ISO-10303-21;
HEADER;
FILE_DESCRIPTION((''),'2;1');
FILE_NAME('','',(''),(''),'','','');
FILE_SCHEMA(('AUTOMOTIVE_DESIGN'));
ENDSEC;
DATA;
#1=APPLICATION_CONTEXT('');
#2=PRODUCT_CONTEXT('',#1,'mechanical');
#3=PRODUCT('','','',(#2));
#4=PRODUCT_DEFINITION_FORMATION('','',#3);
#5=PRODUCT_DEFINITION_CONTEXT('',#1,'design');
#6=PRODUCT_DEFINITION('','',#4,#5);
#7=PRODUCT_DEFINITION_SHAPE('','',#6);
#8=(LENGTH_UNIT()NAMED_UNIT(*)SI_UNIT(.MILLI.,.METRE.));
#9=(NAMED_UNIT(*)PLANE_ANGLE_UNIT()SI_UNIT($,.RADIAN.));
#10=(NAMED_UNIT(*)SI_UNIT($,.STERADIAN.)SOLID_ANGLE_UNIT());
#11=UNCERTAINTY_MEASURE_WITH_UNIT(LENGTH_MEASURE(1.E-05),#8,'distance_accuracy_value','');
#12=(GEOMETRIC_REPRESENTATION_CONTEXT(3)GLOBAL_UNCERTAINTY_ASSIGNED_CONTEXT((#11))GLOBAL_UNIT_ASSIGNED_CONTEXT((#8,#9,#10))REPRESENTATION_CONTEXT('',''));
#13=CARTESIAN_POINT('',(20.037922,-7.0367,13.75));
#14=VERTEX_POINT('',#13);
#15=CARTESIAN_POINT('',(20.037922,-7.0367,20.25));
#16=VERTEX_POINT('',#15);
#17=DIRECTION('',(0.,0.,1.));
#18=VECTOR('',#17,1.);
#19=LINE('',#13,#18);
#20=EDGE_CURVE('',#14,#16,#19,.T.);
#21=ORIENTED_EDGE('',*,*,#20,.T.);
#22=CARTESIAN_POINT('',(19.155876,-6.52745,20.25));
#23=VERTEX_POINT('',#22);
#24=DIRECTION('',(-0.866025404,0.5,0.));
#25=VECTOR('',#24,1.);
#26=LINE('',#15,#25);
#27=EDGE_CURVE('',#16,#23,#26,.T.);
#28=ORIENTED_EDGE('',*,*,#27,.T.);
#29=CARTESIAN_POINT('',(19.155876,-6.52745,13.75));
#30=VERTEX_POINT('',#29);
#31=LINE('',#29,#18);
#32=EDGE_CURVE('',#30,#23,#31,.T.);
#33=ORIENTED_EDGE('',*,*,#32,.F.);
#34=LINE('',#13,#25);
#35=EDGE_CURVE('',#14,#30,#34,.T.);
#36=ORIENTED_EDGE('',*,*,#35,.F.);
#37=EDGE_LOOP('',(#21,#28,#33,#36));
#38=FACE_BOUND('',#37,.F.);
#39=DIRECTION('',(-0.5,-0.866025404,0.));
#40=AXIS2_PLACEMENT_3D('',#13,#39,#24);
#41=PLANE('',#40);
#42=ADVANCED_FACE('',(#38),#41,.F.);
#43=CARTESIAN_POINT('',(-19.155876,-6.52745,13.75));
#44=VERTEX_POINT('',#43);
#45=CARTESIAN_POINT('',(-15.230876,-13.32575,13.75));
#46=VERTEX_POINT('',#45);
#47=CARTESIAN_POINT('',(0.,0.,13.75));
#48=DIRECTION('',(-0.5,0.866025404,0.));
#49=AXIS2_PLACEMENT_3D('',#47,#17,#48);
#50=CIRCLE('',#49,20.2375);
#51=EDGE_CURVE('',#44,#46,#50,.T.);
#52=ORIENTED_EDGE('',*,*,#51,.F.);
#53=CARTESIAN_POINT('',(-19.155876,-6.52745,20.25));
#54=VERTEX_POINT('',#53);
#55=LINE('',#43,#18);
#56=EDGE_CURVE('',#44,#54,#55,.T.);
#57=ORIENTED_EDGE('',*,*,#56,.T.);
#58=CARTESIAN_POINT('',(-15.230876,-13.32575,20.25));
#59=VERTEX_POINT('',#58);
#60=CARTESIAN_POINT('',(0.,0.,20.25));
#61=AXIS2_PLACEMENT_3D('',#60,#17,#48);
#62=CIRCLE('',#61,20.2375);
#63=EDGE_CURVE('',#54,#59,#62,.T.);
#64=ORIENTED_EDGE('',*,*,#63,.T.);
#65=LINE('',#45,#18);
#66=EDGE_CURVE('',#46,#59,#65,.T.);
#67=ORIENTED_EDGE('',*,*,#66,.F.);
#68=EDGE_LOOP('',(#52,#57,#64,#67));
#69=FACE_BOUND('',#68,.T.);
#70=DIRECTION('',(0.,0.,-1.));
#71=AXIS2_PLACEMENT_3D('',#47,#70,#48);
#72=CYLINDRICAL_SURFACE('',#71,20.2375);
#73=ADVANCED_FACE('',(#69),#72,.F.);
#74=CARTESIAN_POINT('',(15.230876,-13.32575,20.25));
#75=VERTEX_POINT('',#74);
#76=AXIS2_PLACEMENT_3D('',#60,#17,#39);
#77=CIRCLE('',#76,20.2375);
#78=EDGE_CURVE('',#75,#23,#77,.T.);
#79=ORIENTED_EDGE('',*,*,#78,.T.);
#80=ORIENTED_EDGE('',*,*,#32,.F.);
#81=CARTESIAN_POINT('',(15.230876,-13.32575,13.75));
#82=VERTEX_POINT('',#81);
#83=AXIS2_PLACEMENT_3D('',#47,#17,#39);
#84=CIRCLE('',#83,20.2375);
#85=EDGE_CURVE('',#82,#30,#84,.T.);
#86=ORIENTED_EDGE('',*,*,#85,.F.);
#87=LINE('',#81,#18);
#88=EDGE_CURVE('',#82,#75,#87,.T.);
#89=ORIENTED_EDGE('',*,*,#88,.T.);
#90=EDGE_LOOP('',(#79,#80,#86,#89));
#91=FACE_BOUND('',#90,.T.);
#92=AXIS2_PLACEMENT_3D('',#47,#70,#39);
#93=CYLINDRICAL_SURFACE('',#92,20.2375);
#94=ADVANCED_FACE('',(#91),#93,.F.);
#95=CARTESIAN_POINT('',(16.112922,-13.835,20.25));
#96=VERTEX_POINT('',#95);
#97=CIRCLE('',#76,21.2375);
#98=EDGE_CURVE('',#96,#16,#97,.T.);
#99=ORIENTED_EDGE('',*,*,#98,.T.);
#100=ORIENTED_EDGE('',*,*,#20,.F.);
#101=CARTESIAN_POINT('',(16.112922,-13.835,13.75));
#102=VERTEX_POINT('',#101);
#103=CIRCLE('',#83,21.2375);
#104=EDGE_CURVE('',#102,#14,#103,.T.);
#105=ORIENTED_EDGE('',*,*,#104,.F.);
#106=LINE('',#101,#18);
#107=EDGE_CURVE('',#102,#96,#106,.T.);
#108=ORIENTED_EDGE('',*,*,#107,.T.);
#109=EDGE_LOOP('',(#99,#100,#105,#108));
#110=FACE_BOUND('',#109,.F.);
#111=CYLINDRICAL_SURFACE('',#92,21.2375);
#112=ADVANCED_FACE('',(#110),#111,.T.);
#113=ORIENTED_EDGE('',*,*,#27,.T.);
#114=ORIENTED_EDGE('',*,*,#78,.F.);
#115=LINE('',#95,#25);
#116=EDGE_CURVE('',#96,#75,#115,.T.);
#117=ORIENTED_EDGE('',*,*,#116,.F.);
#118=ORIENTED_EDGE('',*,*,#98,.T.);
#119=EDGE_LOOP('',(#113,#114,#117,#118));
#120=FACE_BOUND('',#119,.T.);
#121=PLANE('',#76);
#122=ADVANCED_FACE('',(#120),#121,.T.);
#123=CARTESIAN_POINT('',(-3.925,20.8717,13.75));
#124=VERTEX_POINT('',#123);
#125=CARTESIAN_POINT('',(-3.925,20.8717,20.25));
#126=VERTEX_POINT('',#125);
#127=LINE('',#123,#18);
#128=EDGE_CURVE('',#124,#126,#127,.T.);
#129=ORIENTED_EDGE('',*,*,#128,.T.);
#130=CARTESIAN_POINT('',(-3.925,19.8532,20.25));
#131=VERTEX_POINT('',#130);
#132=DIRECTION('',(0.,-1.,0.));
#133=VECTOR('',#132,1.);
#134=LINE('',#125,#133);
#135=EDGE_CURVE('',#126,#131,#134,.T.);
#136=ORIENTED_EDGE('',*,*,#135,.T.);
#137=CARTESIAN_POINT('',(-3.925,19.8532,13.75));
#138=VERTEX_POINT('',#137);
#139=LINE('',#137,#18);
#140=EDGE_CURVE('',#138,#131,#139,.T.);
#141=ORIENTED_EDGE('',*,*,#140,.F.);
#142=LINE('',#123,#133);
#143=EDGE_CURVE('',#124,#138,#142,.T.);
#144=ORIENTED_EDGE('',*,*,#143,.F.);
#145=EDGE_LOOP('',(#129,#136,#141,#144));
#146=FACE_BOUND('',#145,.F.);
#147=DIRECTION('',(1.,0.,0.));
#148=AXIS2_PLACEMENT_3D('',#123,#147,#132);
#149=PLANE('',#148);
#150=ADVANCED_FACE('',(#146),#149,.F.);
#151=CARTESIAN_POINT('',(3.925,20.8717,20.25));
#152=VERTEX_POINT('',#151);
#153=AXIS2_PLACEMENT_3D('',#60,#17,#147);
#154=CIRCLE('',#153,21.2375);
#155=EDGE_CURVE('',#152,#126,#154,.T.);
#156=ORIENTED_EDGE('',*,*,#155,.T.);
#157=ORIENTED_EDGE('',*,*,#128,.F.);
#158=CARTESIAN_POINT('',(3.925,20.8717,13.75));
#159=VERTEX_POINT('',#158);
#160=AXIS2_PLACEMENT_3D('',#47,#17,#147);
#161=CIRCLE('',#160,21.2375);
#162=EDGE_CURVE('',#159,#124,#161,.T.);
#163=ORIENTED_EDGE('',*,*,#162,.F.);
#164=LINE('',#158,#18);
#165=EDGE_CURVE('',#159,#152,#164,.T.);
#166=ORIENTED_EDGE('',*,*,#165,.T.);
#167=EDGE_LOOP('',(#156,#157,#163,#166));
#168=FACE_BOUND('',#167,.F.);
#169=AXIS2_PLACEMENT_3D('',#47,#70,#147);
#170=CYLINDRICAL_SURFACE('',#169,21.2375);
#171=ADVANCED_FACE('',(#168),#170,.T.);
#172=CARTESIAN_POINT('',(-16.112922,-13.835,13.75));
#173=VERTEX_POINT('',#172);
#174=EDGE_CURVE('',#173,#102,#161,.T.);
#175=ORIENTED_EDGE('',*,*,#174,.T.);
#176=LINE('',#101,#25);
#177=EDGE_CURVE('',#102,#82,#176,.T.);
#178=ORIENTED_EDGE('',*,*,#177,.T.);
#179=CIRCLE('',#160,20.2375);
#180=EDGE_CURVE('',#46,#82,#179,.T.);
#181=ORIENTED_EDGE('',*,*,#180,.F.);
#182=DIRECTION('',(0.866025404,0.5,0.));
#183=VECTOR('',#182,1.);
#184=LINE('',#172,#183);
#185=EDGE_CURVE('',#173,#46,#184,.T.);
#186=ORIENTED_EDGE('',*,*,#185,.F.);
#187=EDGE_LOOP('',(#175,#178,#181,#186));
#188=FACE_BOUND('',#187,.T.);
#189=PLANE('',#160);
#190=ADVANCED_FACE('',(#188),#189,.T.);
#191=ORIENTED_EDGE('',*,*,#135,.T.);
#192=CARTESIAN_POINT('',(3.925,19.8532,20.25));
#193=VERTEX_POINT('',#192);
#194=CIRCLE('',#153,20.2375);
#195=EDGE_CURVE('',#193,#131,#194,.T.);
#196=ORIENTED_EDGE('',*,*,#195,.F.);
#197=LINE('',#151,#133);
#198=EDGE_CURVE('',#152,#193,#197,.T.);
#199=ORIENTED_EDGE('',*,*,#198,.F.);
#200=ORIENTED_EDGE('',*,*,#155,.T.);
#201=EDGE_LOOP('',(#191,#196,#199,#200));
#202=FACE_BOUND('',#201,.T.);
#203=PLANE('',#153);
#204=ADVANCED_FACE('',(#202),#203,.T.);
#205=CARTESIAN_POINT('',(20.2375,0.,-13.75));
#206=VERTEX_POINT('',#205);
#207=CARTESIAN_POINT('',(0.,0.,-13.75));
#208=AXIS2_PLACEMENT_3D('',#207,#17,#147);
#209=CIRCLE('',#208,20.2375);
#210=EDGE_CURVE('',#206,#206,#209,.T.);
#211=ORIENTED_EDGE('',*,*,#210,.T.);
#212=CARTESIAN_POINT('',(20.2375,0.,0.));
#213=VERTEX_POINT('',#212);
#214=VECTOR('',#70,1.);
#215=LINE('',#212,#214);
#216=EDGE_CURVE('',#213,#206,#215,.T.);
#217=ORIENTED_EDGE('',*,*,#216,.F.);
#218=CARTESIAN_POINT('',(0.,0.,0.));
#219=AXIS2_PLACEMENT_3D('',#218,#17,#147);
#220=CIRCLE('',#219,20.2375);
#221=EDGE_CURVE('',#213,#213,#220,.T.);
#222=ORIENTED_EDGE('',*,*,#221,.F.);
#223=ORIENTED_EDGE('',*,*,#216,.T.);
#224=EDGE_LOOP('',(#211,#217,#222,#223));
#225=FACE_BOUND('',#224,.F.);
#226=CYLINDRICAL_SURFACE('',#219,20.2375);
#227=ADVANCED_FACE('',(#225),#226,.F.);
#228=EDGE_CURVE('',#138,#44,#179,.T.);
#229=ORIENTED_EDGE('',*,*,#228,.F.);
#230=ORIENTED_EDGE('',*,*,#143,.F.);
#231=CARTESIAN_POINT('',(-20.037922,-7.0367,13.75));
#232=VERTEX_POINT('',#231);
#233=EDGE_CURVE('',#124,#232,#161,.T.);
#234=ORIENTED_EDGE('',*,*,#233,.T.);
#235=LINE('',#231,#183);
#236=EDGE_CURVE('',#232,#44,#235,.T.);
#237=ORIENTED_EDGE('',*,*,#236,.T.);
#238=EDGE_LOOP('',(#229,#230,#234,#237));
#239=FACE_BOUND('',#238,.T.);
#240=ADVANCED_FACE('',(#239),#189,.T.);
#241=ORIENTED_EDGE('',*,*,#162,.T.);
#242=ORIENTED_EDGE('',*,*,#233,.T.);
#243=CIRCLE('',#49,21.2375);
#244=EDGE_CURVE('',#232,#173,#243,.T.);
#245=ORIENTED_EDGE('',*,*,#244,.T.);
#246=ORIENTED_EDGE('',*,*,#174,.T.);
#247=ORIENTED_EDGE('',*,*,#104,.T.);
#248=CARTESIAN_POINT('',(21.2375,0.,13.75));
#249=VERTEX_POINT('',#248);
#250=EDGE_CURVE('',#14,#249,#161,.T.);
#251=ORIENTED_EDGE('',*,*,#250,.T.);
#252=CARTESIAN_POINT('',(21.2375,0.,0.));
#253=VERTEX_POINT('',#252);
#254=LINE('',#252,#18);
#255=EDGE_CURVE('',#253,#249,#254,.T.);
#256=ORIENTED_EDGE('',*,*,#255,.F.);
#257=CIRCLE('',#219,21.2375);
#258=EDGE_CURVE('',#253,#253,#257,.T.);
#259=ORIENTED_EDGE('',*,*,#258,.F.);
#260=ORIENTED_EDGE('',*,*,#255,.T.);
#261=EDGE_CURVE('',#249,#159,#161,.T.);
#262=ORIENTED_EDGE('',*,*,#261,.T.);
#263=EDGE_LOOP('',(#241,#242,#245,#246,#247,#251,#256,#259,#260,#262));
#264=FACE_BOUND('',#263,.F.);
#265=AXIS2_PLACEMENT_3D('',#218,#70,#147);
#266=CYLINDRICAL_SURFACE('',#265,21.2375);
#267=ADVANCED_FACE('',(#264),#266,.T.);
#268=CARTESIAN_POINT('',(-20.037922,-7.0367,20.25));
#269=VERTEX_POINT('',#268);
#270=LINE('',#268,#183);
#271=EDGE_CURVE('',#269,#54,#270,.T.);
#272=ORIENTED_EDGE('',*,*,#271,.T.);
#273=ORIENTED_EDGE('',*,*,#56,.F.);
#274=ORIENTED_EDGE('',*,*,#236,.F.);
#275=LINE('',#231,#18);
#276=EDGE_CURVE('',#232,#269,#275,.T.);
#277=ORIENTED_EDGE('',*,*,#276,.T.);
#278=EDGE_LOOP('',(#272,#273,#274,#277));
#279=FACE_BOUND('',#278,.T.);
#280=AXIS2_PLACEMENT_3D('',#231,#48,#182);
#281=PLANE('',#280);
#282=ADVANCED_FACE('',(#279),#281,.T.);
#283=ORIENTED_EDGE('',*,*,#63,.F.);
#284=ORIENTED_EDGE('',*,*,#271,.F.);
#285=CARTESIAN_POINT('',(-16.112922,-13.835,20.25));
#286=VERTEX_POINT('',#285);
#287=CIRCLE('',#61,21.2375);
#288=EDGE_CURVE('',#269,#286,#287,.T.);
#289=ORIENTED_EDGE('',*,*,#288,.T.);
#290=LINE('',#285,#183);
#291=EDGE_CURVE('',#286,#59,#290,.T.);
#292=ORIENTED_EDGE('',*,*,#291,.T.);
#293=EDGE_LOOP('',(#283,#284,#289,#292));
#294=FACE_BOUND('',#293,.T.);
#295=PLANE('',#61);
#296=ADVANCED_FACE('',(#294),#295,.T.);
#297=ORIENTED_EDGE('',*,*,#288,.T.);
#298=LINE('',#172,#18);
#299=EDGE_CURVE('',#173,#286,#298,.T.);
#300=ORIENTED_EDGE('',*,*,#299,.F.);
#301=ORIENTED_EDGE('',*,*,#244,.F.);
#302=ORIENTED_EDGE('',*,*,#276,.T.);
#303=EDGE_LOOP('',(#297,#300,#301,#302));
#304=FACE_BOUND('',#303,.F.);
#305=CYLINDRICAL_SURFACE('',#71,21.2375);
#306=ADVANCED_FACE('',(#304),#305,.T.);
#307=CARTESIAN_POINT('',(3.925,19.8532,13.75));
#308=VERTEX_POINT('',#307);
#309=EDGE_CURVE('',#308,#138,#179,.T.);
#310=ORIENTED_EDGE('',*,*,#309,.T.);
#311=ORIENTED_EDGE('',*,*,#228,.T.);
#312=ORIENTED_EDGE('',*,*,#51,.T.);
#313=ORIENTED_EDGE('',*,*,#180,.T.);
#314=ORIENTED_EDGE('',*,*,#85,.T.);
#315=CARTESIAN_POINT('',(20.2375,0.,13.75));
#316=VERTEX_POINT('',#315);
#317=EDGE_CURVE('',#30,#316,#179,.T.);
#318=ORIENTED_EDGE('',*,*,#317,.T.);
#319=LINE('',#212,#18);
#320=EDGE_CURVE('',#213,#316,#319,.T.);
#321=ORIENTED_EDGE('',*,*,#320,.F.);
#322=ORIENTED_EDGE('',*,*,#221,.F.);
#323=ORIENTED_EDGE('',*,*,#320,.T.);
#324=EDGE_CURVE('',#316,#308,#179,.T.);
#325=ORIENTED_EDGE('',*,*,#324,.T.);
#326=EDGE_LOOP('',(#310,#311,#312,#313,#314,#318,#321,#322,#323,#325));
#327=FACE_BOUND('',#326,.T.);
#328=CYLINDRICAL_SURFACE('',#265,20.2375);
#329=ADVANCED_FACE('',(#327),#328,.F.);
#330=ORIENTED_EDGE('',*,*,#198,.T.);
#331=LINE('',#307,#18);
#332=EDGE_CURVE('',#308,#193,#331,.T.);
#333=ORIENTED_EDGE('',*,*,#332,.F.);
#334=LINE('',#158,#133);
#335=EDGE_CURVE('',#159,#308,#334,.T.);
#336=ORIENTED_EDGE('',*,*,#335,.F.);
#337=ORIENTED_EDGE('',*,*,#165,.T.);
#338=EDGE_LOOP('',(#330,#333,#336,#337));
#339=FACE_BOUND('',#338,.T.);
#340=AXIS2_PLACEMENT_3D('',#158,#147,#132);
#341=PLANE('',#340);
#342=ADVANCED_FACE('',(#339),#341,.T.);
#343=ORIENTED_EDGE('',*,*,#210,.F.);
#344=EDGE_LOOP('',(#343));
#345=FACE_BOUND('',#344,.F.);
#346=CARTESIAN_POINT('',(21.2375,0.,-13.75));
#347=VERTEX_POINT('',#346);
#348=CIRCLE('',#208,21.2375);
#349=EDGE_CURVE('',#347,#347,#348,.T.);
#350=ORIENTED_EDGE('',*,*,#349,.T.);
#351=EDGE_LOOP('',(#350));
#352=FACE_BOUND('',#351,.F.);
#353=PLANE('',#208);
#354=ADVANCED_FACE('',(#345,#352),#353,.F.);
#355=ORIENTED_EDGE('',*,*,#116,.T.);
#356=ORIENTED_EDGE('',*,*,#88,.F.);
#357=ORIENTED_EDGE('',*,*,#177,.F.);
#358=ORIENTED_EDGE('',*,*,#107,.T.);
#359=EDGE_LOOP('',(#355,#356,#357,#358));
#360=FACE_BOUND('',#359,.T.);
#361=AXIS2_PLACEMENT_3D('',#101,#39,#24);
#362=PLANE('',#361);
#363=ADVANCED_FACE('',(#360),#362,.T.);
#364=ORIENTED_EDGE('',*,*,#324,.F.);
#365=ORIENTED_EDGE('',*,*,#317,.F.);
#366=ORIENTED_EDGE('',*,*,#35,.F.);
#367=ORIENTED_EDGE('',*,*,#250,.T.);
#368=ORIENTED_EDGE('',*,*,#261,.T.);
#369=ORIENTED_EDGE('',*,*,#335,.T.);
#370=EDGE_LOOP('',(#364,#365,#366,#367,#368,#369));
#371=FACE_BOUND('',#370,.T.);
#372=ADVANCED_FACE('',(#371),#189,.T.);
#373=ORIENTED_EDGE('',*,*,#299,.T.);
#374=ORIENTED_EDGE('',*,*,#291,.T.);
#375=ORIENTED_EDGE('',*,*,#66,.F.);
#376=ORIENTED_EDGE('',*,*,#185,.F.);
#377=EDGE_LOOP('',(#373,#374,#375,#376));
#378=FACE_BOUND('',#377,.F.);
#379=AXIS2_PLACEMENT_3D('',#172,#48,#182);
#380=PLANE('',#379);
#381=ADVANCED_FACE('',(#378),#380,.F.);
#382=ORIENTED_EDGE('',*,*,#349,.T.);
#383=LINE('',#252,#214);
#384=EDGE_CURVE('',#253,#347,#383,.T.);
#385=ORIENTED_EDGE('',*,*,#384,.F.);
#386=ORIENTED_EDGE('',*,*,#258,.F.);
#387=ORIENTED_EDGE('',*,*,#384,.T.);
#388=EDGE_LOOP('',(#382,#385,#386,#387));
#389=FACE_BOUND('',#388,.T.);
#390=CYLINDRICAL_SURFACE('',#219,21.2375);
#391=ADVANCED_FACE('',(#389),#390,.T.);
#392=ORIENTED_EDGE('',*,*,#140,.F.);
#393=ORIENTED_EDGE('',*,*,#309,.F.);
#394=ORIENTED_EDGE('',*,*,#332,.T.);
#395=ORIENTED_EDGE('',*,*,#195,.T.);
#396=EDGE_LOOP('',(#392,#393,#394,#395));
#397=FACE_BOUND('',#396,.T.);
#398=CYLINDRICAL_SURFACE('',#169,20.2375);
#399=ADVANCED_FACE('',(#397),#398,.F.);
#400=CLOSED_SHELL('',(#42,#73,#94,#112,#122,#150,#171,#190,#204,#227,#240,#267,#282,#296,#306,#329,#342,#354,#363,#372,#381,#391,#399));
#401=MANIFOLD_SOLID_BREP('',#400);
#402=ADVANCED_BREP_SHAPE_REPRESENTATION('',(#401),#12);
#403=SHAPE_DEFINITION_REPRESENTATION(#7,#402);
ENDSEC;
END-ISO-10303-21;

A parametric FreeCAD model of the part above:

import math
import FreeCAD as App
import Part
import Sketcher
Q = App.Units.Quantity

doc = App.newDocument("Part")
body = doc.addObject("PartDesign::Body", "Body")

# Sketch on XY plane
sketch1 = body.newObject("Sketcher::SketchObject", "Sketch")
sketch1.AttachmentSupport = (doc.getObject("XY_Plane"), [""])
sketch1.MapMode = "FlatFace"
sketch1.addGeometry(Part.Circle(App.Vector(0, 0, 0), App.Vector(0, 0, 1), 21), False)
sketch1.addGeometry(Part.Circle(App.Vector(0, 0, 0), App.Vector(0, 0, 1), 20), False)
sketch1.addConstraint(Sketcher.Constraint("Coincident", 0, 3, -1, 1))
sketch1.addConstraint(Sketcher.Constraint("Coincident", 1, 3, -1, 1))
sketch1.addConstraint(Sketcher.Constraint("Diameter", 0, Q("42.475 mm")))
sketch1.addConstraint(Sketcher.Constraint("Diameter", 1, Q("40.475 mm")))
pad1 = body.newObject("PartDesign::Pad", "Pad")
pad1.Profile = sketch1
pad1.Length = 27.5
pad1.Midplane = True

# Sketch on XY plane
sketch2 = body.newObject("Sketcher::SketchObject", "Sketch001")
sketch2.AttachmentSupport = (doc.getObject("XY_Plane"), [""])
sketch2.MapMode = "FlatFace"
sketch2.AttachmentOffset = App.Placement(App.Vector(0, 0, 13.75), App.Rotation())
sketch2.addGeometry(Part.LineSegment(App.Vector(3.9, 19.9, 0), App.Vector(3.9, 20.9, 0)), False)
sketch2.addGeometry(Part.ArcOfCircle(Part.Circle(App.Vector(0, 0, 0), App.Vector(0, 0, 1), 21.2), math.radians(79), math.radians(101)), False)
sketch2.addGeometry(Part.LineSegment(App.Vector(-3.9, 20.9, 0), App.Vector(-3.9, 19.9, 0)), False)
sketch2.addGeometry(Part.ArcOfCircle(Part.Circle(App.Vector(0, 0, 0), App.Vector(0, 0, 1), 20.2), math.radians(79), math.radians(101)), False)
sketch2.addConstraint(Sketcher.Constraint("Coincident", 0, 2, 1, 1))
sketch2.addConstraint(Sketcher.Constraint("Coincident", 1, 2, 2, 1))
sketch2.addConstraint(Sketcher.Constraint("Coincident", 2, 2, 3, 2))
sketch2.addConstraint(Sketcher.Constraint("Coincident", 3, 1, 0, 1))
sketch2.addConstraint(Sketcher.Constraint("Vertical", 0))
sketch2.addConstraint(Sketcher.Constraint("Vertical", 2))
sketch2.addConstraint(Sketcher.Constraint("Coincident", 1, 3, -1, 1))
sketch2.addConstraint(Sketcher.Constraint("Coincident", 3, 3, -1, 1))
sketch2.addConstraint(Sketcher.Constraint("Horizontal", 0, 2, 1, 2))
sketch2.addConstraint(Sketcher.Constraint("DistanceX", 1, 2, 0, 2, Q("7.85 mm")))
sketch2.addConstraint(Sketcher.Constraint("Radius", 1, Q("21.2375 mm")))
sketch2.addConstraint(Sketcher.Constraint("Radius", 3, Q("20.2375 mm")))
pad2 = body.newObject("PartDesign::Pad", "Pad001")
pad2.Profile = sketch2
pad2.Length = 6.5
doc.recompute()

polarpattern = body.newObject("PartDesign::PolarPattern", "PolarPattern")
polarpattern.Originals = [pad2]
polarpattern.Axis = (doc.getObject("Z_Axis"), [""])
polarpattern.Angle = 360
polarpattern.Occurrences = 3
body.Tip = polarpattern

doc.recompute()
